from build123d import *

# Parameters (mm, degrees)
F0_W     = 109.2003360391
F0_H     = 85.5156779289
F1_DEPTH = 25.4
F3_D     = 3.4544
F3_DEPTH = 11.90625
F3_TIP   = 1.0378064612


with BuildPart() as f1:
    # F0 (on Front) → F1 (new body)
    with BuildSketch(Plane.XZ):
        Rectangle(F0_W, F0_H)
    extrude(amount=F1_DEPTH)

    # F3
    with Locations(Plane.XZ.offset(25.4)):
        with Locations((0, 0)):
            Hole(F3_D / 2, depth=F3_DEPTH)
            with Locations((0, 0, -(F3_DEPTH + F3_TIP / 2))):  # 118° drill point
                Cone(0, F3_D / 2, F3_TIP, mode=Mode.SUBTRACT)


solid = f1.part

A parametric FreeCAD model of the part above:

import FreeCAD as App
import Part
import Sketcher

V = App.Vector
Q = App.Units.Quantity

doc = App.newDocument("Part")
params = doc.addObject("Spreadsheet::Sheet", "Params")
for row, (alias, value) in enumerate([
    ("pad1_length", "1 in"),
    ("sketch2_diameter", "0.136 in"),
    ("hole_diameter", "0.136 in"),
    ("hole_depth", "0.46875 in"),
], start=1):
    params.set(f"A{row}", alias)
    params.set(f"B{row}", "=" + value)
    params.setAlias(f"B{row}", alias)

body = doc.addObject("PartDesign::Body", "Body")

# Sketch on XZ plane
sketch1 = body.newObject("Sketcher::SketchObject", "Sketch")
sketch1.AttachmentSupport = (doc.getObject("XZ_Plane"), [""])
sketch1.MapMode = "FlatFace"
sketch1.addGeometry(Part.LineSegment(V(-55, 43, 0), V(-55, -43, 0)), False)
sketch1.addGeometry(Part.LineSegment(V(-55, -43, 0), V(55, -43, 0)), False)
sketch1.addGeometry(Part.LineSegment(V(55, -43, 0), V(55, 43, 0)), False)
sketch1.addGeometry(Part.LineSegment(V(55, 43, 0), V(-55, 43, 0)), False)
sketch1.addConstraint(Sketcher.Constraint("Coincident", 0, 2, 1, 1))
sketch1.addConstraint(Sketcher.Constraint("Coincident", 1, 2, 2, 1))
sketch1.addConstraint(Sketcher.Constraint("Coincident", 2, 2, 3, 1))
sketch1.addConstraint(Sketcher.Constraint("Coincident", 3, 2, 0, 1))
sketch1.addConstraint(Sketcher.Constraint("Vertical", 0))
sketch1.addConstraint(Sketcher.Constraint("Horizontal", 1))
sketch1.addConstraint(Sketcher.Constraint("Vertical", 2))
sketch1.addConstraint(Sketcher.Constraint("Horizontal", 3))
sketch1.addConstraint(Sketcher.Constraint("Symmetric", 0, 2, 2, 2, -1, 1))
sketch1.addConstraint(Sketcher.Constraint("DistanceX", 1, 1, 1, 2, Q("109.200336 mm")))
sketch1.addConstraint(Sketcher.Constraint("DistanceY", 0, 2, 0, 1, Q("85.515678 mm")))
pad1 = body.newObject("PartDesign::Pad", "Pad")
pad1.Profile = sketch1
pad1.setExpression("Length", "Params.pad1_length")

# Sketch on XZ plane
sketch2 = body.newObject("Sketcher::SketchObject", "Sketch001")
sketch2.AttachmentSupport = (doc.getObject("XZ_Plane"), [""])
sketch2.MapMode = "FlatFace"
sketch2.AttachmentOffset = App.Placement(V(0, 0, 1 * 25.4), App.Rotation())
sketch2.addGeometry(Part.Circle(V(0, 0, 0), V(0, 0, 1), 1.7), False)
sketch2.addConstraint(Sketcher.Constraint("Coincident", 0, 3, -1, 1))
sketch2.addConstraint(Sketcher.Constraint("Diameter", 0, Q("0.136 in")))
sketch2.setExpression("Constraints[1]", "Params.sketch2_diameter")
doc.recompute()
hole = body.newObject("PartDesign::Hole", "Hole")
hole.Profile = sketch2
hole.ThreadType = "None"
hole.setExpression("Diameter", "Params.hole_diameter")
hole.DepthType = "Dimension"
hole.setExpression("Depth", "Params.hole_depth")
hole.DrillPoint = "Angled"
hole.DrillPointAngle = 118

doc.recompute()
